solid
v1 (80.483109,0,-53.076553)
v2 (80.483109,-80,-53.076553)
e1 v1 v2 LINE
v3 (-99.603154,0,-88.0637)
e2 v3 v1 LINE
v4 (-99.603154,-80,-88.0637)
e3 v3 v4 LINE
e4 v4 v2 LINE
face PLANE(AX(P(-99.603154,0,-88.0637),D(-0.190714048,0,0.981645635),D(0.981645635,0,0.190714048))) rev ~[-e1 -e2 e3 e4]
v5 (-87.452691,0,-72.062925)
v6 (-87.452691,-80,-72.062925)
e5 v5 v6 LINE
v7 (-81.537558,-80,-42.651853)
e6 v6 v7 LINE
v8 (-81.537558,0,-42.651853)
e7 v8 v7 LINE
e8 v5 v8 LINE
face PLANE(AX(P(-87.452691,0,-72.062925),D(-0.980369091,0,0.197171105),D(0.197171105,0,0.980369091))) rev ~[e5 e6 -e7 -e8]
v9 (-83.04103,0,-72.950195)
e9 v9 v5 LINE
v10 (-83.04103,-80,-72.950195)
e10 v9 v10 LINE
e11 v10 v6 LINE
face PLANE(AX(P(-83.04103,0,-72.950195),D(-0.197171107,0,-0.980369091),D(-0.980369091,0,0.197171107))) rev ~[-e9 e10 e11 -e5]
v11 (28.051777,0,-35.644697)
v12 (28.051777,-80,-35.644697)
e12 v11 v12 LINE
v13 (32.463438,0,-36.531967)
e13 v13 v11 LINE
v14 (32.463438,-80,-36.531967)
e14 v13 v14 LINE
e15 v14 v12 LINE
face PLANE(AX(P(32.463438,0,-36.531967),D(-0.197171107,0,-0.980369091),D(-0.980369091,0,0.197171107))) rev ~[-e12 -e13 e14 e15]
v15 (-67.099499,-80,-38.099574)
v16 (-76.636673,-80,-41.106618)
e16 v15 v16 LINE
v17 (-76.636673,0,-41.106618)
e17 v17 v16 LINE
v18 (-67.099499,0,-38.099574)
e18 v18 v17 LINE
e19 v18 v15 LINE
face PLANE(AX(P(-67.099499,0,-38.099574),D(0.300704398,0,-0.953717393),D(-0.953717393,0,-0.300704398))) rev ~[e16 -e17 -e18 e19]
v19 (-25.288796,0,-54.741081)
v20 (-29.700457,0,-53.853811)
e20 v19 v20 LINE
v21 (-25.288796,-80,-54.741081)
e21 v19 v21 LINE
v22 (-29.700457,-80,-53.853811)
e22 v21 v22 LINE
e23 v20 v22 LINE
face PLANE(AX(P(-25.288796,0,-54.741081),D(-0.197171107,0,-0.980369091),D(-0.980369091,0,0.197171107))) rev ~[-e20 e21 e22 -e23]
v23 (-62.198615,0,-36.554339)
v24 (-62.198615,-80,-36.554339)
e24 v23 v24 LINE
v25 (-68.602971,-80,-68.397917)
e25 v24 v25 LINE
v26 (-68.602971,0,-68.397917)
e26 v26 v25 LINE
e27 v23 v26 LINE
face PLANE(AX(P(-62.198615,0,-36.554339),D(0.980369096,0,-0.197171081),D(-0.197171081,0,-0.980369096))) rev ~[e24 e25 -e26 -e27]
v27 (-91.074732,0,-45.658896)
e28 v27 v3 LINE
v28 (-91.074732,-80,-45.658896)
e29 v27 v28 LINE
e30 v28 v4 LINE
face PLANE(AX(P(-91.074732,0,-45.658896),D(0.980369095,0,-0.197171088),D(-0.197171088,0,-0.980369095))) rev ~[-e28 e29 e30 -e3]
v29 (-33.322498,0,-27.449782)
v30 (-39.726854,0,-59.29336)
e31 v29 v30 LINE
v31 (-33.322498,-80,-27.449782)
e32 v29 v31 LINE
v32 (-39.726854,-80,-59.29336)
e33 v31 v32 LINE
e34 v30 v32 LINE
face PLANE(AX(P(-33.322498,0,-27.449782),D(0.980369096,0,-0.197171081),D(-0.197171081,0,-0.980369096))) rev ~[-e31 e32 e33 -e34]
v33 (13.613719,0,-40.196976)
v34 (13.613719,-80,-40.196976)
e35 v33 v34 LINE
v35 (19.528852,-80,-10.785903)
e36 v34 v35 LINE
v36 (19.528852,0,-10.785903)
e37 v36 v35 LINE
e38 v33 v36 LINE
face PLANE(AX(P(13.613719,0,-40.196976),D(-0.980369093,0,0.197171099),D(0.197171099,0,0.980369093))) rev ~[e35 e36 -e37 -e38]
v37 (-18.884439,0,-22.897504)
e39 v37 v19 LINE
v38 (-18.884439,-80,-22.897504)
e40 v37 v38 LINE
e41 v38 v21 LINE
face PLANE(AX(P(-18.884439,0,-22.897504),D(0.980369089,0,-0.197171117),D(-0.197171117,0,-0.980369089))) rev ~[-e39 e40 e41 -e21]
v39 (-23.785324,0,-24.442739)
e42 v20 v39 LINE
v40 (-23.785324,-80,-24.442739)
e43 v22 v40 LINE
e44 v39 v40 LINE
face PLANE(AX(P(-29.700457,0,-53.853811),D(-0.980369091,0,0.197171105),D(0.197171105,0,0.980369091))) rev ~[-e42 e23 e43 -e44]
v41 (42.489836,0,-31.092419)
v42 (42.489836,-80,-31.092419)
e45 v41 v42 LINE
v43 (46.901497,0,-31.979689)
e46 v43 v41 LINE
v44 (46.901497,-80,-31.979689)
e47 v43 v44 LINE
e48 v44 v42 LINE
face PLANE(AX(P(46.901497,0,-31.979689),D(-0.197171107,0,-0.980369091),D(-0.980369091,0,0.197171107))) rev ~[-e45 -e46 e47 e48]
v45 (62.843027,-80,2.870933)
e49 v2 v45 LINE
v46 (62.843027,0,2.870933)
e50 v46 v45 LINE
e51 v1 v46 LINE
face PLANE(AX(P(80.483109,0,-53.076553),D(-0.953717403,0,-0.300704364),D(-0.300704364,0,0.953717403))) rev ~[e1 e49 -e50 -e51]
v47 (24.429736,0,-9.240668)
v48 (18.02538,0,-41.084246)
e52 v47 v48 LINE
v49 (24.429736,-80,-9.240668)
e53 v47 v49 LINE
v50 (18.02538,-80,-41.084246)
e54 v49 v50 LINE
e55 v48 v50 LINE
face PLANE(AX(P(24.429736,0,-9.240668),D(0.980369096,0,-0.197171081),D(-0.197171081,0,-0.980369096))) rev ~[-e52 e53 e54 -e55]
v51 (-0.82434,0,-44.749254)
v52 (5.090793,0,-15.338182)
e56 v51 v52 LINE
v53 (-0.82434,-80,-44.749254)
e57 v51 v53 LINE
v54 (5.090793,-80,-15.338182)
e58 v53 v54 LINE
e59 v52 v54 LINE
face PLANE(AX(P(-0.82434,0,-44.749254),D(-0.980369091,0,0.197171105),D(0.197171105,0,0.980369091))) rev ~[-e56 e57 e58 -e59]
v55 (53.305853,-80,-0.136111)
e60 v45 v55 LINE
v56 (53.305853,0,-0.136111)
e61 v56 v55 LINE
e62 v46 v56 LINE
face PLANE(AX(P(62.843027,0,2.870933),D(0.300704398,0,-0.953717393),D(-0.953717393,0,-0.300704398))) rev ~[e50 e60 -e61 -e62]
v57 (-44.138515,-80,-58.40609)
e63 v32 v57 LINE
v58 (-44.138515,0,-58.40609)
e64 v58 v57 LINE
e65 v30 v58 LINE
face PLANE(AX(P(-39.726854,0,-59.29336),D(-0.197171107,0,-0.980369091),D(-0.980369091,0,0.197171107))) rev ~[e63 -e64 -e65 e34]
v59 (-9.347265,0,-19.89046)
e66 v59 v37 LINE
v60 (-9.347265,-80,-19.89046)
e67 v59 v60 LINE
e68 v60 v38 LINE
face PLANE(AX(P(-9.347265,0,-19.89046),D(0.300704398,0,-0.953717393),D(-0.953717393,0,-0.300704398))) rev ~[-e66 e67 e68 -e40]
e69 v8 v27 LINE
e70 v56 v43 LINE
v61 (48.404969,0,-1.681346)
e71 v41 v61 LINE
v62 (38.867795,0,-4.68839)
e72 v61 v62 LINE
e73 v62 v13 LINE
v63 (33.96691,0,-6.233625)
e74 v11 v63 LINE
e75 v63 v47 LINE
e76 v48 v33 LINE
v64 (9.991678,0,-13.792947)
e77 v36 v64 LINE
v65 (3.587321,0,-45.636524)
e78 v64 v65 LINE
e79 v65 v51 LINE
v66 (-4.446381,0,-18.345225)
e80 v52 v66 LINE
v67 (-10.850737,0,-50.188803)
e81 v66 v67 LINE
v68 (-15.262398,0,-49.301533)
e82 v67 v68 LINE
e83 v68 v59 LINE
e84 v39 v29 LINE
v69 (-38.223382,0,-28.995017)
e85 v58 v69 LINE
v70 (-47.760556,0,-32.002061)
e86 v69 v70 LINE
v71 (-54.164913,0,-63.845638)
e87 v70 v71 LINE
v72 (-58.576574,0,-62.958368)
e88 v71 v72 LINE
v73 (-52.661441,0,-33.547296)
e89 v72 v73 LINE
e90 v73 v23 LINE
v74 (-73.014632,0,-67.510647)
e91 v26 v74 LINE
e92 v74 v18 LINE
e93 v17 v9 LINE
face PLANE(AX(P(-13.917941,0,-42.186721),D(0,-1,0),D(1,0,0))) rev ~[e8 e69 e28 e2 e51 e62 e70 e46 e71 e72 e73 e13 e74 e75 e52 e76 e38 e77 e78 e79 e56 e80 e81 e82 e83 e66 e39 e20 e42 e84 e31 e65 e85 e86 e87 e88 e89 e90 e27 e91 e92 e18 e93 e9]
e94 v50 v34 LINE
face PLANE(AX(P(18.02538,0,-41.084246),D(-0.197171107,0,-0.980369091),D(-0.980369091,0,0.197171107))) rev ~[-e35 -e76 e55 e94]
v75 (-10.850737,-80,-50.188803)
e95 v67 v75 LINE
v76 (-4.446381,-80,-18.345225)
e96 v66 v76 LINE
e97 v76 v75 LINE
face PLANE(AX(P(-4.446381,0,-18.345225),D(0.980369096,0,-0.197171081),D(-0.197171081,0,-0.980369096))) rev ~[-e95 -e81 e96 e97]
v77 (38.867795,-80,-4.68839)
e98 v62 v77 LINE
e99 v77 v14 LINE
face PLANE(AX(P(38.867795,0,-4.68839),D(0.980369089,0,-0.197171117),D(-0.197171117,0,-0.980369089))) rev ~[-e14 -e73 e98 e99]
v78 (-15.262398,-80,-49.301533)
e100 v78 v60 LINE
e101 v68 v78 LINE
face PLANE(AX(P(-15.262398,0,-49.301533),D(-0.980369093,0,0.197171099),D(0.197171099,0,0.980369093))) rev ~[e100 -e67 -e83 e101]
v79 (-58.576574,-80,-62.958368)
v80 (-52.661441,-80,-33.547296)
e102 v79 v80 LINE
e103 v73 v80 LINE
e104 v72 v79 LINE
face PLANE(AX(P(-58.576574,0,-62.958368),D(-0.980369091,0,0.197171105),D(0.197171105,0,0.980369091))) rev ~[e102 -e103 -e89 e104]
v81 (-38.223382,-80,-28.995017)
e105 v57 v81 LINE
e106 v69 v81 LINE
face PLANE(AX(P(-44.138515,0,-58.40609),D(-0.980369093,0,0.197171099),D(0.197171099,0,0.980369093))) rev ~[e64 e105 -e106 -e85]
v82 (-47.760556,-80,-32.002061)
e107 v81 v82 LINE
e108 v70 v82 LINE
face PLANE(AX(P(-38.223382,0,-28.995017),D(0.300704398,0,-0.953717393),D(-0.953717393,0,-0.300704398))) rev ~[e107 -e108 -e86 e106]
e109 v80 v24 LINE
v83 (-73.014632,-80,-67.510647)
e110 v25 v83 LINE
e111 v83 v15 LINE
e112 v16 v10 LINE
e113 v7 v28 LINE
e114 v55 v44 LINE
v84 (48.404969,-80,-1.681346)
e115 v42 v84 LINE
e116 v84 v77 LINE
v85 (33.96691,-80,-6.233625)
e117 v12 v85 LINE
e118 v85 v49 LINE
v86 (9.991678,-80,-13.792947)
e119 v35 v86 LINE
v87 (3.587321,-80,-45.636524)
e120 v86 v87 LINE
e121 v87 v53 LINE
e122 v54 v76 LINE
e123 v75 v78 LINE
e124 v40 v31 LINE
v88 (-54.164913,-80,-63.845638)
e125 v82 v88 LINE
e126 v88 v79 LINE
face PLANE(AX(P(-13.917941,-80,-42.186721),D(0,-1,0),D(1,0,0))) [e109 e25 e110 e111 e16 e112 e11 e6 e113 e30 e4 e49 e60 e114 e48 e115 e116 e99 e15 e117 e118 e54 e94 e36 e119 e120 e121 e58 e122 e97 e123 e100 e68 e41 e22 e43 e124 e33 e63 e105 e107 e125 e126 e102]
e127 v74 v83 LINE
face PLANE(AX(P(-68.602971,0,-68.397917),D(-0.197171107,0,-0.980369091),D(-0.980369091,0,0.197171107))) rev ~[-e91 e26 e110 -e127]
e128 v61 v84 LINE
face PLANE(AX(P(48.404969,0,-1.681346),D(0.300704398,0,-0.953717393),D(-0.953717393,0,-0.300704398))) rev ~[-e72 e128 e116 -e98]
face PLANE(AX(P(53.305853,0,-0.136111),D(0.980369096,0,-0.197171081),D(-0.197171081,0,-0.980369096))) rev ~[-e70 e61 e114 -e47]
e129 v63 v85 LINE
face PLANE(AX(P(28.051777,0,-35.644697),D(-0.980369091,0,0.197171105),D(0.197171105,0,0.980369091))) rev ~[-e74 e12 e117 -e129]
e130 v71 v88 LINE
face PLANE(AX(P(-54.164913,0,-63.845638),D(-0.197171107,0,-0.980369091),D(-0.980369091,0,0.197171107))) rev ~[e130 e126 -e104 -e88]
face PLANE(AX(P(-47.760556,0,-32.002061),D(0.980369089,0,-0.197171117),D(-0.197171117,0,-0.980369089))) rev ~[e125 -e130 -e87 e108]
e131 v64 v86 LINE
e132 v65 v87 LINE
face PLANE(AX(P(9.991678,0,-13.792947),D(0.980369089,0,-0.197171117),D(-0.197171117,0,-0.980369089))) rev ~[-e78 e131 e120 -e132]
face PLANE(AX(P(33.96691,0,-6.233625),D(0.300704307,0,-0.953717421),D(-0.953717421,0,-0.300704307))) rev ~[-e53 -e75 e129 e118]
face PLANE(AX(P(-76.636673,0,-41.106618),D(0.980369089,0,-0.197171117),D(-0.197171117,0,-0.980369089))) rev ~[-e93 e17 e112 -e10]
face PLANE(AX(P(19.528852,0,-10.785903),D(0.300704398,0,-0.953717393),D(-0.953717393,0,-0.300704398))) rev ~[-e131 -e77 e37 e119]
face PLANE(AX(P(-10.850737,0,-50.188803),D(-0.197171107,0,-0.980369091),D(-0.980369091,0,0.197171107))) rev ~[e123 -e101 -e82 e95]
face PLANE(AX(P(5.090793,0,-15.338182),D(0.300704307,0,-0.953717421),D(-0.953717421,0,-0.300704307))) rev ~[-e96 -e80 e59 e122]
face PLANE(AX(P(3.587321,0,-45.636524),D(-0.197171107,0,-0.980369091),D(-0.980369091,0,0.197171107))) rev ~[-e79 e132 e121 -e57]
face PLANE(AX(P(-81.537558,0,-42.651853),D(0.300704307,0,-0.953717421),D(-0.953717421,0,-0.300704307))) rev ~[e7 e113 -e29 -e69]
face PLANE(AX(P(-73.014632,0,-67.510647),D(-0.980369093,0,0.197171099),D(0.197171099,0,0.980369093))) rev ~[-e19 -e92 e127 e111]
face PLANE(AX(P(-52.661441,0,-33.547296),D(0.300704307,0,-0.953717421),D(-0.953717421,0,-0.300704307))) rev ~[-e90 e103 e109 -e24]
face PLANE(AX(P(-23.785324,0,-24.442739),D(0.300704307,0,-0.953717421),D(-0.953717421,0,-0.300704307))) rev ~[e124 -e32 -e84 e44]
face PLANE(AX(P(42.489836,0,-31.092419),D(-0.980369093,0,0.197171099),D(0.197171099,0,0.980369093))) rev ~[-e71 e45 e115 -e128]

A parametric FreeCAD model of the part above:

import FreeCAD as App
import Part
import Sketcher

V = App.Vector

doc = App.newDocument("Part")
body = doc.addObject("PartDesign::Body", "Body")

sketch1 = body.newObject("Sketcher::SketchObject", "Sketch")
sketch1.AttachmentSupport = (doc.getObject("XZ_Plane"), [""])
sketch1.MapMode = "FlatFace"
sketch1.addGeometry([
    Part.LineSegment(V(-91.1, -45.7, 0), V(-99.6, -88.1, 0)),
    Part.LineSegment(V(-99.6, -88.1, 0), V(80.5, -53.1, 0)),
    Part.LineSegment(V(80.5, -53.1, 0), V(62.8, 2.9, 0)),
    Part.LineSegment(V(62.8, 2.9, 0), V(53.3, -0.1, 0)),
    Part.LineSegment(V(53.3, -0.1, 0), V(46.9, -32, 0)),
    Part.LineSegment(V(46.9, -32, 0), V(42.5, -31.1, 0)),
    Part.LineSegment(V(42.5, -31.1, 0), V(48.4, -1.7, 0)),
    Part.LineSegment(V(48.4, -1.7, 0), V(38.9, -4.7, 0)),
    Part.LineSegment(V(38.9, -4.7, 0), V(32.5, -36.5, 0)),
    Part.LineSegment(V(32.5, -36.5, 0), V(28.1, -35.6, 0)),
    Part.LineSegment(V(28.1, -35.6, 0), V(34, -6.2, 0)),
    Part.LineSegment(V(34, -6.2, 0), V(24.4, -9.2, 0)),
    Part.LineSegment(V(24.4, -9.2, 0), V(18, -41.1, 0)),
    Part.LineSegment(V(18, -41.1, 0), V(13.6, -40.2, 0)),
    Part.LineSegment(V(13.6, -40.2, 0), V(19.5, -10.8, 0)),
    Part.LineSegment(V(19.5, -10.8, 0), V(10, -13.8, 0)),
    Part.LineSegment(V(10, -13.8, 0), V(3.6, -45.6, 0)),
    Part.LineSegment(V(3.6, -45.6, 0), V(-0.8, -44.7, 0)),
    Part.LineSegment(V(-0.8, -44.7, 0), V(5.1, -15.3, 0)),
    Part.LineSegment(V(5.1, -15.3, 0), V(-4.4, -18.3, 0)),
    Part.LineSegment(V(-4.4, -18.3, 0), V(-10.9, -50.2, 0)),
    Part.LineSegment(V(-10.9, -50.2, 0), V(-15.3, -49.3, 0)),
    Part.LineSegment(V(-15.3, -49.3, 0), V(-9.3, -19.9, 0)),
    Part.LineSegment(V(-9.3, -19.9, 0), V(-18.9, -22.9, 0)),
    Part.LineSegment(V(-18.9, -22.9, 0), V(-25.3, -54.7, 0)),
    Part.LineSegment(V(-25.3, -54.7, 0), V(-29.7, -53.9, 0)),
    Part.LineSegment(V(-29.7, -53.9, 0), V(-23.8, -24.4, 0)),
    Part.LineSegment(V(-23.8, -24.4, 0), V(-33.3, -27.4, 0)),
    Part.LineSegment(V(-33.3, -27.4, 0), V(-39.7, -59.3, 0)),
    Part.LineSegment(V(-39.7, -59.3, 0), V(-44.1, -58.4, 0)),
    Part.LineSegment(V(-44.1, -58.4, 0), V(-38.2, -29, 0)),
    Part.LineSegment(V(-38.2, -29, 0), V(-47.8, -32, 0)),
    Part.LineSegment(V(-47.8, -32, 0), V(-54.2, -63.8, 0)),
    Part.LineSegment(V(-54.2, -63.8, 0), V(-58.6, -63, 0)),
    Part.LineSegment(V(-58.6, -63, 0), V(-52.7, -33.5, 0)),
    Part.LineSegment(V(-52.7, -33.5, 0), V(-62.2, -36.6, 0)),
    Part.LineSegment(V(-62.2, -36.6, 0), V(-68.6, -68.4, 0)),
    Part.LineSegment(V(-68.6, -68.4, 0), V(-73, -67.5, 0)),
    Part.LineSegment(V(-73, -67.5, 0), V(-67.1, -38.1, 0)),
    Part.LineSegment(V(-67.1, -38.1, 0), V(-76.6, -41.1, 0)),
    Part.LineSegment(V(-76.6, -41.1, 0), V(-83, -73, 0)),
    Part.LineSegment(V(-83, -73, 0), V(-87.5, -72.1, 0)),
    Part.LineSegment(V(-87.5, -72.1, 0), V(-81.5, -42.7, 0)),
    Part.LineSegment(V(-81.5, -42.7, 0), V(-91.1, -45.7, 0)),
], False)
sketch1.addConstraint([
    Sketcher.Constraint("Coincident", 0, 2, 1, 1),
    Sketcher.Constraint("Coincident", 1, 2, 2, 1),
    Sketcher.Constraint("Coincident", 2, 2, 3, 1),
    Sketcher.Constraint("Coincident", 3, 2, 4, 1),
    Sketcher.Constraint("Coincident", 4, 2, 5, 1),
    Sketcher.Constraint("Coincident", 5, 2, 6, 1),
    Sketcher.Constraint("Coincident", 6, 2, 7, 1),
    Sketcher.Constraint("Coincident", 7, 2, 8, 1),
    Sketcher.Constraint("Coincident", 8, 2, 9, 1),
    Sketcher.Constraint("Coincident", 9, 2, 10, 1),
    Sketcher.Constraint("Coincident", 10, 2, 11, 1),
    Sketcher.Constraint("Coincident", 11, 2, 12, 1),
    Sketcher.Constraint("Coincident", 12, 2, 13, 1),
    Sketcher.Constraint("Coincident", 13, 2, 14, 1),
    Sketcher.Constraint("Coincident", 14, 2, 15, 1),
    Sketcher.Constraint("Coincident", 15, 2, 16, 1),
    Sketcher.Constraint("Coincident", 16, 2, 17, 1),
    Sketcher.Constraint("Coincident", 17, 2, 18, 1),
    Sketcher.Constraint("Coincident", 18, 2, 19, 1),
    Sketcher.Constraint("Coincident", 19, 2, 20, 1),
    Sketcher.Constraint("Coincident", 20, 2, 21, 1),
    Sketcher.Constraint("Coincident", 21, 2, 22, 1),
    Sketcher.Constraint("Coincident", 22, 2, 23, 1),
    Sketcher.Constraint("Coincident", 23, 2, 24, 1),
    Sketcher.Constraint("Coincident", 24, 2, 25, 1),
    Sketcher.Constraint("Coincident", 25, 2, 26, 1),
    Sketcher.Constraint("Coincident", 26, 2, 27, 1),
    Sketcher.Constraint("Coincident", 27, 2, 28, 1),
    Sketcher.Constraint("Coincident", 28, 2, 29, 1),
    Sketcher.Constraint("Coincident", 29, 2, 30, 1),
    Sketcher.Constraint("Coincident", 30, 2, 31, 1),
    Sketcher.Constraint("Coincident", 31, 2, 32, 1),
    Sketcher.Constraint("Coincident", 32, 2, 33, 1),
    Sketcher.Constraint("Coincident", 33, 2, 34, 1),
    Sketcher.Constraint("Coincident", 34, 2, 35, 1),
    Sketcher.Constraint("Coincident", 35, 2, 36, 1),
    Sketcher.Constraint("Coincident", 36, 2, 37, 1),
    Sketcher.Constraint("Coincident", 37, 2, 38, 1),
    Sketcher.Constraint("Coincident", 38, 2, 39, 1),
    Sketcher.Constraint("Coincident", 39, 2, 40, 1),
    Sketcher.Constraint("Coincident", 40, 2, 41, 1),
    Sketcher.Constraint("Coincident", 41, 2, 42, 1),
    Sketcher.Constraint("Coincident", 42, 2, 43, 1),
    Sketcher.Constraint("Coincident", 43, 2, 0, 1),
    Sketcher.Constraint("Perpendicular", 2, 3),
    Sketcher.Constraint("Parallel", 0, 4),
    Sketcher.Constraint("Perpendicular", 4, 5),
    Sketcher.Constraint("Perpendicular", 5, 6),
    Sketcher.Constraint("Parallel", 3, 7),
    Sketcher.Constraint("Parallel", 6, 8),
    Sketcher.Constraint("Perpendicular", 8, 9),
    Sketcher.Constraint("Perpendicular", 9, 10),
    Sketcher.Constraint("Parallel", 7, 11),
    Sketcher.Constraint("Parallel", 10, 12),
    Sketcher.Constraint("Perpendicular", 12, 13),
    Sketcher.Constraint("Perpendicular", 13, 14),
    Sketcher.Constraint("Parallel", 11, 15),
    Sketcher.Constraint("Parallel", 14, 16),
    Sketcher.Constraint("Perpendicular", 16, 17),
    Sketcher.Constraint("Perpendicular", 17, 18),
    Sketcher.Constraint("Parallel", 15, 19),
    Sketcher.Constraint("Parallel", 18, 20),
    Sketcher.Constraint("Perpendicular", 20, 21),
    Sketcher.Constraint("Perpendicular", 21, 22),
    Sketcher.Constraint("Parallel", 19, 23),
    Sketcher.Constraint("Parallel", 22, 24),
    Sketcher.Constraint("Perpendicular", 24, 25),
    Sketcher.Constraint("Perpendicular", 25, 26),
    Sketcher.Constraint("Parallel", 23, 27),
    Sketcher.Constraint("Parallel", 26, 28),
    Sketcher.Constraint("Perpendicular", 28, 29),
    Sketcher.Constraint("Perpendicular", 29, 30),
    Sketcher.Constraint("Parallel", 27, 31),
    Sketcher.Constraint("Parallel", 30, 32),
    Sketcher.Constraint("Perpendicular", 32, 33),
    Sketcher.Constraint("Perpendicular", 33, 34),
    Sketcher.Constraint("Parallel", 31, 35),
    Sketcher.Constraint("Parallel", 34, 36),
    Sketcher.Constraint("Perpendicular", 36, 37),
    Sketcher.Constraint("Perpendicular", 37, 38),
    Sketcher.Constraint("Parallel", 35, 39),
    Sketcher.Constraint("Parallel", 38, 40),
    Sketcher.Constraint("Perpendicular", 40, 41),
    Sketcher.Constraint("Perpendicular", 41, 42),
    Sketcher.Constraint("Parallel", 39, 43),
    Sketcher.Constraint("Equal", 3, 7),
    Sketcher.Constraint("Equal", 4, 8),
    Sketcher.Constraint("Equal", 5, 9),
    Sketcher.Constraint("Equal", 6, 10),
    Sketcher.Constraint("Equal", 7, 11),
    Sketcher.Constraint("Equal", 8, 12),
    Sketcher.Constraint("Equal", 9, 13),
    Sketcher.Constraint("Equal", 10, 14),
    Sketcher.Constraint("Equal", 11, 15),
    Sketcher.Constraint("Equal", 12, 16),
    Sketcher.Constraint("Equal", 13, 17),
    Sketcher.Constraint("Equal", 14, 18),
    Sketcher.Constraint("Equal", 15, 19),
    Sketcher.Constraint("Equal", 16, 20),
    Sketcher.Constraint("Equal", 17, 21),
    Sketcher.Constraint("Equal", 18, 22),
    Sketcher.Constraint("Equal", 19, 23),
    Sketcher.Constraint("Equal", 20, 24),
    Sketcher.Constraint("Equal", 21, 25),
    Sketcher.Constraint("Equal", 22, 26),
    Sketcher.Constraint("Equal", 23, 27),
    Sketcher.Constraint("Equal", 24, 28),
    Sketcher.Constraint("Equal", 25, 29),
    Sketcher.Constraint("Equal", 26, 30),
    Sketcher.Constraint("Equal", 27, 31),
    Sketcher.Constraint("Equal", 28, 32),
    Sketcher.Constraint("Equal", 29, 33),
    Sketcher.Constraint("Equal", 30, 34),
    Sketcher.Constraint("Equal", 31, 35),
    Sketcher.Constraint("Equal", 32, 36),
    Sketcher.Constraint("Equal", 33, 37),
    Sketcher.Constraint("Equal", 34, 38),
    Sketcher.Constraint("Equal", 35, 39),
    Sketcher.Constraint("Equal", 36, 40),
    Sketcher.Constraint("Equal", 37, 41),
    Sketcher.Constraint("Equal", 38, 42),
    Sketcher.Constraint("Equal", 39, 43),
    Sketcher.Constraint("Distance", 3, 10.0),
    Sketcher.Constraint("Distance", 6, 30.0),
    Sketcher.Constraint("Distance", 5, 4.5),
    Sketcher.Constraint("DistanceY", 0, 2, -1, 1, 88.0637),
    Sketcher.Constraint("DistanceX", 27, 2, -1, 1, 33.322498),
    Sketcher.Constraint("DistanceX", 38, 2, -1, 1, 67.099499),
    Sketcher.Constraint("DistanceX", 7, 2, 4, 2, 8.033702),
    Sketcher.Constraint("DistanceY", 4, 2, 7, 2, 27.291299),
    Sketcher.Constraint("Distance", 2, 58.662541),
    Sketcher.Constraint("DistanceY", 3, 2, -1, 1, 0.136111),
])
pad1 = body.newObject("PartDesign::Pad", "Pad")
pad1.Profile = sketch1
pad1.Length = 80

doc.recompute()
